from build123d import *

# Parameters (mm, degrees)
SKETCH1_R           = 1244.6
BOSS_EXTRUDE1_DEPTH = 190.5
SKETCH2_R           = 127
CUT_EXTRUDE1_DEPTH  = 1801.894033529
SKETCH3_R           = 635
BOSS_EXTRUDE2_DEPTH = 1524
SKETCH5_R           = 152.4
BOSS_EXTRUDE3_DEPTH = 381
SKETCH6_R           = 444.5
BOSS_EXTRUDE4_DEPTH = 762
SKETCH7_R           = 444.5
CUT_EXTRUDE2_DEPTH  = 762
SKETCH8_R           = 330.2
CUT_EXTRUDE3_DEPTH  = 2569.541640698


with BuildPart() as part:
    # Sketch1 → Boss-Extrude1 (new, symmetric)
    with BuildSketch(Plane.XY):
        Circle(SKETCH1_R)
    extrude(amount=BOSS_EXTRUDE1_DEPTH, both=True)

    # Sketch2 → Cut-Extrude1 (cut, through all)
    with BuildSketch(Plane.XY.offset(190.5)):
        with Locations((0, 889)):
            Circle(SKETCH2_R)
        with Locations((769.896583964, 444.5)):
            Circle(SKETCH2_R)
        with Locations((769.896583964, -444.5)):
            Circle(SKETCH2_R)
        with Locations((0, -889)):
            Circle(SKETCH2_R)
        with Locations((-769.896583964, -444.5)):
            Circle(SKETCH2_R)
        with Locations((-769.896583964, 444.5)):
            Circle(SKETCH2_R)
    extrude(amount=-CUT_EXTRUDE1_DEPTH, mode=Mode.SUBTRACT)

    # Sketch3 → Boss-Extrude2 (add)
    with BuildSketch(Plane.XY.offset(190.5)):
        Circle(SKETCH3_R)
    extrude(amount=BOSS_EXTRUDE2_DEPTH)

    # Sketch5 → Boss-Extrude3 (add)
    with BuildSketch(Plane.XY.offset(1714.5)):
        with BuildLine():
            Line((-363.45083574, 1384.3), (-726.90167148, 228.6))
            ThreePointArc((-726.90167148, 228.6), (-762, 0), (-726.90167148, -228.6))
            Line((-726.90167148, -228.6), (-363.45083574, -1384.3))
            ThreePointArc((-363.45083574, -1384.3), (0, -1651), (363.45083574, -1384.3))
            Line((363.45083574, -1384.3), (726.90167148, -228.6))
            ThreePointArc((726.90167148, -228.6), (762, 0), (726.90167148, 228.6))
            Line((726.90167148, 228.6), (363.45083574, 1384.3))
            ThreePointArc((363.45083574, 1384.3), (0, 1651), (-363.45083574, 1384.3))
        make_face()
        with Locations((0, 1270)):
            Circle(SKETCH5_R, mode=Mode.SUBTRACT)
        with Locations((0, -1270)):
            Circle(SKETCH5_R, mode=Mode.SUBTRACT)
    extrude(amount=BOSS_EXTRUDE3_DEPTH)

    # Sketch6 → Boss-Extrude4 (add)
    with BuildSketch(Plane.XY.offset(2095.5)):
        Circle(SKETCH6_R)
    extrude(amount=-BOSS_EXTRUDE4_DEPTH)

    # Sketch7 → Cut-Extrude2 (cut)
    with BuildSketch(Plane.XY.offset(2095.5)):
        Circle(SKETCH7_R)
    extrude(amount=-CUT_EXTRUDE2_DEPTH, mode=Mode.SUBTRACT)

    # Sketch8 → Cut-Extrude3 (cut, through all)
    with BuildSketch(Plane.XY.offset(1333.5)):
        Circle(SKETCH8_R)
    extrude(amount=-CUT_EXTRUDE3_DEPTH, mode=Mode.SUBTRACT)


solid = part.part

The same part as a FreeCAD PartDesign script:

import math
import FreeCAD as App
import Part
import Sketcher
from FreeCAD import Vector
Q = App.Units.Quantity

doc = App.newDocument("Part")
body = doc.addObject("PartDesign::Body", "Body")

sketch1 = doc.addObject("Sketcher::SketchObject", "Sketch")
body.addObject(sketch1)
sketch1.AttachmentSupport = (doc.XY_Plane, [""])
sketch1.MapMode = "FlatFace"
sketch1.addGeometry(Part.Circle(Vector(0, 0, 0), Vector(0, 0, 1), 1245), False)
sketch1.addConstraint([
    Sketcher.Constraint("Coincident", 0, 3, -1, 1),
    Sketcher.Constraint("Diameter", 0, Q("98 in")),
])
pad1 = doc.addObject("PartDesign::Pad", "Pad")
body.addObject(pad1)
pad1.Profile = sketch1
pad1.Length = Q("15 in")
pad1.Midplane = True

sketch2 = doc.addObject("Sketcher::SketchObject", "Sketch001")
body.addObject(sketch2)
sketch2.AttachmentSupport = (doc.XY_Plane, [""])
sketch2.MapMode = "FlatFace"
sketch2.AttachmentOffset = App.Placement(Vector(0, 0, 7.5 * 25.4), App.Rotation())
sketch2.addGeometry([
    Part.Circle(Vector(0, 889, 0), Vector(0, 0, 1), 127),
    Part.Circle(Vector(770, 444, 0), Vector(0, 0, 1), 127),
    Part.Circle(Vector(770, -444, 0), Vector(0, 0, 1), 127),
    Part.Circle(Vector(0, -889, 0), Vector(0, 0, 1), 127),
    Part.Circle(Vector(-770, -444, 0), Vector(0, 0, 1), 127),
    Part.Circle(Vector(-770, 444, 0), Vector(0, 0, 1), 127),
], False)
sketch2.addConstraint([
    Sketcher.Constraint("Equal", 0, 1),
    Sketcher.Constraint("Equal", 1, 2),
    Sketcher.Constraint("Equal", 2, 3),
    Sketcher.Constraint("Equal", 3, 4),
    Sketcher.Constraint("Equal", 4, 5),
    Sketcher.Constraint("Symmetric", 0, 3, 3, 3, -1, 1),
    Sketcher.Constraint("Symmetric", 1, 3, 4, 3, -1, 1),
    Sketcher.Constraint("Symmetric", 2, 3, 5, 3, -1, 1),
    Sketcher.Constraint("Symmetric", 2, 3, 4, 3, -2),
    Sketcher.Constraint("PointOnObject", 0, 3, -2),
    Sketcher.Constraint("Diameter", 0, Q("10 in")),
    Sketcher.Constraint("DistanceY", -1, 1, 0, 3, Q("35 in")),
    Sketcher.Constraint("DistanceY", 2, 3, 1, 3, Q("35 in")),
    Sketcher.Constraint("DistanceX", -1, 1, 1, 3, 769.896584),
])
pocket1 = doc.addObject("PartDesign::Pocket", "Pocket")
body.addObject(pocket1)
pocket1.Profile = sketch2
pocket1.Type = "ThroughAll"

sketch3 = doc.addObject("Sketcher::SketchObject", "Sketch002")
body.addObject(sketch3)
sketch3.AttachmentSupport = (doc.XY_Plane, [""])
sketch3.MapMode = "FlatFace"
sketch3.AttachmentOffset = App.Placement(Vector(0, 0, 7.5 * 25.4), App.Rotation())
sketch3.addGeometry(Part.Circle(Vector(0, 0, 0), Vector(0, 0, 1), 635), False)
sketch3.addConstraint([
    Sketcher.Constraint("Coincident", 0, 3, -1, 1),
    Sketcher.Constraint("Diameter", 0, Q("50 in")),
])
pad2 = doc.addObject("PartDesign::Pad", "Pad001")
body.addObject(pad2)
pad2.Profile = sketch3
pad2.Length = Q("60 in")

sketch4 = doc.addObject("Sketcher::SketchObject", "Sketch003")
body.addObject(sketch4)
sketch4.AttachmentSupport = (doc.XY_Plane, [""])
sketch4.MapMode = "FlatFace"
sketch4.AttachmentOffset = App.Placement(Vector(0, 0, 67.5 * 25.4), App.Rotation())
sketch4.addGeometry([
    Part.LineSegment(Vector(-363, 1384, 0), Vector(-727, 229, 0)),
    Part.ArcOfCircle(Part.Circle(Vector(0, 0, 0), Vector(0, 0, 1), 762), math.radians(163), math.radians(197)),
    Part.LineSegment(Vector(-727, -229, 0), Vector(-363, -1384, 0)),
    Part.ArcOfCircle(Part.Circle(Vector(0, -1270, 0), Vector(0, 0, 1), 381), math.radians(-163), math.radians(-17)),
    Part.LineSegment(Vector(363, -1384, 0), Vector(727, -229, 0)),
    Part.ArcOfCircle(Part.Circle(Vector(0, 0, 0), Vector(0, 0, 1), 762), math.radians(-17), math.radians(17)),
    Part.LineSegment(Vector(727, 229, 0), Vector(363, 1384, 0)),
    Part.ArcOfCircle(Part.Circle(Vector(0, 1270, 0), Vector(0, 0, 1), 381), math.radians(17), math.radians(163)),
    Part.Circle(Vector(0, -1270, 0), Vector(0, 0, 1), 152),
    Part.Circle(Vector(0, 1270, 0), Vector(0, 0, 1), 152),
], False)
sketch4.addConstraint([
    Sketcher.Constraint("Tangent", 0, 2, 1, 1),
    Sketcher.Constraint("Coincident", 1, 2, 2, 1),
    Sketcher.Constraint("Tangent", 2, 2, 3, 1),
    Sketcher.Constraint("Tangent", 3, 2, 4, 1),
    Sketcher.Constraint("Tangent", 4, 2, 5, 1),
    Sketcher.Constraint("Coincident", 5, 2, 6, 1),
    Sketcher.Constraint("Tangent", 6, 2, 7, 1),
    Sketcher.Constraint("Tangent", 7, 2, 0, 1),
    Sketcher.Constraint("Coincident", 1, 3, -1, 1),
    Sketcher.Constraint("Coincident", 5, 3, -1, 1),
    Sketcher.Constraint("Coincident", 8, 3, 3, 3),
    Sketcher.Constraint("Coincident", 9, 3, 7, 3),
    Sketcher.Constraint("Equal", 1, 5),
    Sketcher.Constraint("Equal", 3, 7),
    Sketcher.Constraint("Equal", 8, 9),
    Sketcher.Constraint("Symmetric", 3, 3, 7, 3, -1, 1),
    Sketcher.Constraint("PointOnObject", 3, 3, -2),
    Sketcher.Constraint("Equal", 0, 2),
    Sketcher.Constraint("Equal", 4, 6),
    Sketcher.Constraint("Diameter", 8, Q("12 in")),
    Sketcher.Constraint("Radius", 1, Q("30 in")),
    Sketcher.Constraint("Radius", 3, Q("15 in")),
    Sketcher.Constraint("DistanceY", 3, 3, -1, 1, Q("50 in")),
])
pad3 = doc.addObject("PartDesign::Pad", "Pad002")
body.addObject(pad3)
pad3.Profile = sketch4
pad3.Length = Q("15 in")

sketch5 = doc.addObject("Sketcher::SketchObject", "Sketch004")
body.addObject(sketch5)
sketch5.AttachmentSupport = (doc.XY_Plane, [""])
sketch5.MapMode = "FlatFace"
sketch5.AttachmentOffset = App.Placement(Vector(0, 0, 82.5 * 25.4), App.Rotation())
sketch5.addGeometry(Part.Circle(Vector(0, 0, 0), Vector(0, 0, 1), 444), False)
sketch5.addConstraint([
    Sketcher.Constraint("Coincident", 0, 3, -1, 1),
    Sketcher.Constraint("Diameter", 0, Q("35 in")),
])
pad4 = doc.addObject("PartDesign::Pad", "Pad003")
body.addObject(pad4)
pad4.Profile = sketch5
pad4.Length = Q("30 in")
pad4.Reversed = True

sketch6 = doc.addObject("Sketcher::SketchObject", "Sketch005")
body.addObject(sketch6)
sketch6.AttachmentSupport = (doc.XY_Plane, [""])
sketch6.MapMode = "FlatFace"
sketch6.AttachmentOffset = App.Placement(Vector(0, 0, 82.5 * 25.4), App.Rotation())
sketch6.addGeometry(Part.Circle(Vector(0, 0, 0), Vector(0, 0, 1), 444), False)
sketch6.addConstraint([
    Sketcher.Constraint("Coincident", 0, 3, -1, 1),
    Sketcher.Constraint("Diameter", 0, Q("35 in")),
])
pocket2 = doc.addObject("PartDesign::Pocket", "Pocket001")
body.addObject(pocket2)
pocket2.Profile = sketch6
pocket2.Length = Q("30 in")

sketch7 = doc.addObject("Sketcher::SketchObject", "Sketch006")
body.addObject(sketch7)
sketch7.AttachmentSupport = (doc.XY_Plane, [""])
sketch7.MapMode = "FlatFace"
sketch7.AttachmentOffset = App.Placement(Vector(0, 0, 52.5 * 25.4), App.Rotation())
sketch7.addGeometry(Part.Circle(Vector(0, 0, 0), Vector(0, 0, 1), 330), False)
sketch7.addConstraint([
    Sketcher.Constraint("Coincident", 0, 3, -1, 1),
    Sketcher.Constraint("Diameter", 0, Q("26 in")),
])
pocket3 = doc.addObject("PartDesign::Pocket", "Pocket002")
body.addObject(pocket3)
pocket3.Profile = sketch7
pocket3.Type = "ThroughAll"

doc.recompute()
